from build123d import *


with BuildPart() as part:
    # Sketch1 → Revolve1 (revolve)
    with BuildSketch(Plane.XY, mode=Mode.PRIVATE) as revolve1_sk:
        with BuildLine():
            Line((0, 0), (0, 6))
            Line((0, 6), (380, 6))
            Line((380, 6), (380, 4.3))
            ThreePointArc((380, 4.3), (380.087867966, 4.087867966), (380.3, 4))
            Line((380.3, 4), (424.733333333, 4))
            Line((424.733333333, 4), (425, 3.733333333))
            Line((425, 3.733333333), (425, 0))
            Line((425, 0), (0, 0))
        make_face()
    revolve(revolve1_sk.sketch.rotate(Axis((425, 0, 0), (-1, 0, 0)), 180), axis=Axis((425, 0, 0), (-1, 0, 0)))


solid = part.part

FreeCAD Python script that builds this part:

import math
import FreeCAD as App
import Part
import Sketcher
Q = App.Units.Quantity

doc = App.newDocument("Part")
body = doc.addObject("PartDesign::Body", "Body")

# Sketch on XY plane
sketch1 = body.newObject("Sketcher::SketchObject", "Sketch")
sketch1.AttachmentSupport = (doc.getObject("XY_Plane"), [""])
sketch1.MapMode = "FlatFace"
sketch1.addGeometry([
    Part.LineSegment(App.Vector(0, 6, 0), App.Vector(0, 0, 0)),  # 0
    Part.LineSegment(App.Vector(0, 0, 0), App.Vector(425, 0, 0)),  # 1
    Part.LineSegment(App.Vector(425, 0, 0), App.Vector(425, 3.73, 0)),  # 2
    Part.LineSegment(App.Vector(425, 3.73, 0), App.Vector(424.73, 4, 0)),  # 3
    Part.LineSegment(App.Vector(424.73, 4, 0), App.Vector(380.3, 4, 0)),  # 4
    Part.ArcOfCircle(Part.Circle(App.Vector(380.3, 4.3, 0), App.Vector(0, 0, 1), 0.3), math.radians(-180), math.radians(-90)),  # 5
    Part.LineSegment(App.Vector(380, 4.3, 0), App.Vector(380, 6, 0)),  # 6
    Part.LineSegment(App.Vector(380, 6, 0), App.Vector(0, 6, 0)),  # 7
], False)
sketch1.addConstraint([
    Sketcher.Constraint("Coincident", 0, 2, 1, 1),
    Sketcher.Constraint("Coincident", 1, 2, 2, 1),
    Sketcher.Constraint("Coincident", 2, 2, 3, 1),
    Sketcher.Constraint("Coincident", 3, 2, 4, 1),
    Sketcher.Constraint("Tangent", 4, 2, 5, 2),
    Sketcher.Constraint("Tangent", 5, 1, 6, 1),
    Sketcher.Constraint("Coincident", 6, 2, 7, 1),
    Sketcher.Constraint("Coincident", 7, 2, 0, 1),
    Sketcher.Constraint("Vertical", 0),
    Sketcher.Constraint("Horizontal", 1),
    Sketcher.Constraint("Vertical", 2),
    Sketcher.Constraint("Horizontal", 4),
    Sketcher.Constraint("Vertical", 6),
    Sketcher.Constraint("Horizontal", 7),
    Sketcher.Constraint("Coincident", 0, 2, -1, 1),
    Sketcher.Constraint("Radius", 5, 0.3),
    Sketcher.Constraint("DistanceX", 1, 1, 1, 2, 425.0),
    Sketcher.Constraint("DistanceX", 7, 2, 7, 1, 380.0),
    Sketcher.Constraint("DistanceY", 0, 2, 0, 1, 6.0),
    Sketcher.Constraint("Angle", 3, Q("135 deg")),
    Sketcher.Constraint("DistanceY", 6, 1, 6, 2, 1.7),
    Sketcher.Constraint("DistanceX", 4, 2, 4, 1, 44.433333),
])
revolution = body.newObject("PartDesign::Revolution", "Revolution")
revolution.Profile = sketch1
revolution.ReferenceAxis = (sketch1, ["H_Axis"])
revolution.Angle = 360

doc.recompute()
